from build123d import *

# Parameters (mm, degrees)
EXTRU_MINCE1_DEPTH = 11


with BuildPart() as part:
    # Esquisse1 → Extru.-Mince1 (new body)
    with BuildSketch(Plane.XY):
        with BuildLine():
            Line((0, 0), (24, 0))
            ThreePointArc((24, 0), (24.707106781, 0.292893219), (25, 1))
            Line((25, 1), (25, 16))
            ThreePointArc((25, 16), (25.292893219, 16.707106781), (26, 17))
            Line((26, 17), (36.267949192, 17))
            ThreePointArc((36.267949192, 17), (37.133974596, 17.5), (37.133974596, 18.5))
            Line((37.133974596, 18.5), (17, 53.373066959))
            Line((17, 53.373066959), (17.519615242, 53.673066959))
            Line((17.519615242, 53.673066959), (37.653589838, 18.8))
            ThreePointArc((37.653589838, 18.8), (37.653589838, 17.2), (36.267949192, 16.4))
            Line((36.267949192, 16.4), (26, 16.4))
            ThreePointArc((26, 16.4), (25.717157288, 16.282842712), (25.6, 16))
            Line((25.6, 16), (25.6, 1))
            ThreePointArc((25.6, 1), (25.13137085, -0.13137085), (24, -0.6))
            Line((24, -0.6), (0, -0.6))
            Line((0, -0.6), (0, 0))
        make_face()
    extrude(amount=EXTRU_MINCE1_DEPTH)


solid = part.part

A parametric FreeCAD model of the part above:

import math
import FreeCAD as App
import Part
import Sketcher
Q = App.Units.Quantity

doc = App.newDocument("Part")
body = doc.addObject("PartDesign::Body", "Body")

sketch1 = body.newObject("Sketcher::SketchObject", "Sketch")
sketch1.AttachmentSupport = (doc.getObject("XY_Plane"), [""])
sketch1.MapMode = "FlatFace"
sketch1.addGeometry([
    Part.LineSegment(App.Vector(24, 0, 0), App.Vector(0, 0, 0)),
    Part.LineSegment(App.Vector(0, 0, 0), App.Vector(0, -0.6, 0)),
    Part.LineSegment(App.Vector(0, -0.6, 0), App.Vector(24, -0.6, 0)),
    Part.ArcOfCircle(Part.Circle(App.Vector(24, 1, 0), App.Vector(0, 0, 1), 1.6), math.radians(-90), math.radians(0)),
    Part.LineSegment(App.Vector(25.6, 1, 0), App.Vector(25.6, 16, 0)),
    Part.ArcOfCircle(Part.Circle(App.Vector(26, 16, 0), App.Vector(0, 0, 1), 0.4), math.radians(90), math.radians(180)),
    Part.LineSegment(App.Vector(26, 16.4, 0), App.Vector(36.27, 16.4, 0)),
    Part.ArcOfCircle(Part.Circle(App.Vector(36.27, 18, 0), App.Vector(0, 0, 1), 1.6), math.radians(-90), math.radians(30)),
    Part.LineSegment(App.Vector(37.65, 18.8, 0), App.Vector(17.52, 53.67, 0)),
    Part.LineSegment(App.Vector(17.52, 53.67, 0), App.Vector(17, 53.37, 0)),
    Part.LineSegment(App.Vector(17, 53.37, 0), App.Vector(37.13, 18.5, 0)),
    Part.ArcOfCircle(Part.Circle(App.Vector(36.27, 18, 0), App.Vector(0, 0, 1), 1), math.radians(-90), math.radians(30)),
    Part.LineSegment(App.Vector(36.27, 17, 0), App.Vector(26, 17, 0)),
    Part.ArcOfCircle(Part.Circle(App.Vector(26, 16, 0), App.Vector(0, 0, 1), 1), math.radians(90), math.radians(180)),
    Part.LineSegment(App.Vector(25, 16, 0), App.Vector(25, 1, 0)),
    Part.ArcOfCircle(Part.Circle(App.Vector(24, 1, 0), App.Vector(0, 0, 1), 1), math.radians(-90), math.radians(0)),
], False)
sketch1.addConstraint([
    Sketcher.Constraint("Coincident", 0, 2, 1, 1),
    Sketcher.Constraint("Coincident", 1, 2, 2, 1),
    Sketcher.Constraint("Tangent", 2, 2, 3, 1),
    Sketcher.Constraint("Tangent", 3, 2, 4, 1),
    Sketcher.Constraint("Tangent", 4, 2, 5, 2),
    Sketcher.Constraint("Tangent", 5, 1, 6, 1),
    Sketcher.Constraint("Tangent", 6, 2, 7, 1),
    Sketcher.Constraint("Tangent", 7, 2, 8, 1),
    Sketcher.Constraint("Coincident", 8, 2, 9, 1),
    Sketcher.Constraint("Coincident", 9, 2, 10, 1),
    Sketcher.Constraint("Tangent", 10, 2, 11, 2),
    Sketcher.Constraint("Tangent", 11, 1, 12, 1),
    Sketcher.Constraint("Tangent", 12, 2, 13, 1),
    Sketcher.Constraint("Tangent", 13, 2, 14, 1),
    Sketcher.Constraint("Tangent", 14, 2, 15, 2),
    Sketcher.Constraint("Tangent", 15, 1, 0, 1),
    Sketcher.Constraint("Horizontal", 0),
    Sketcher.Constraint("Vertical", 1),
    Sketcher.Constraint("Horizontal", 2),
    Sketcher.Constraint("Vertical", 4),
    Sketcher.Constraint("Horizontal", 6),
    Sketcher.Constraint("Horizontal", 12),
    Sketcher.Constraint("Vertical", 14),
    Sketcher.Constraint("Coincident", 0, 2, -1, 1),
    Sketcher.Constraint("Coincident", 11, 3, 7, 3),
    Sketcher.Constraint("Coincident", 13, 3, 5, 3),
    Sketcher.Constraint("Coincident", 15, 3, 3, 3),
    Sketcher.Constraint("Equal", 3, 7),
    Sketcher.Constraint("Equal", 11, 13),
    Sketcher.Constraint("Perpendicular", 8, 9),
    Sketcher.Constraint("Perpendicular", 9, 10),
    Sketcher.Constraint("Radius", 11, Q("1 mm")),
    Sketcher.Constraint("Radius", 3, Q("1.6 mm")),
    Sketcher.Constraint("DistanceX", 0, 2, 0, 1, Q("24 mm")),
    Sketcher.Constraint("DistanceY", 4, 1, 4, 2, Q("15 mm")),
    Sketcher.Constraint("Angle", 8, Q("120 deg")),
    Sketcher.Constraint("DistanceX", -1, 1, 9, 2, Q("17 mm")),
    Sketcher.Constraint("DistanceX", 6, 1, 6, 2, Q("10.267949 mm")),
])
pad1 = body.newObject("PartDesign::Pad", "Pad")
pad1.Profile = sketch1
pad1.Length = 11

doc.recompute()
